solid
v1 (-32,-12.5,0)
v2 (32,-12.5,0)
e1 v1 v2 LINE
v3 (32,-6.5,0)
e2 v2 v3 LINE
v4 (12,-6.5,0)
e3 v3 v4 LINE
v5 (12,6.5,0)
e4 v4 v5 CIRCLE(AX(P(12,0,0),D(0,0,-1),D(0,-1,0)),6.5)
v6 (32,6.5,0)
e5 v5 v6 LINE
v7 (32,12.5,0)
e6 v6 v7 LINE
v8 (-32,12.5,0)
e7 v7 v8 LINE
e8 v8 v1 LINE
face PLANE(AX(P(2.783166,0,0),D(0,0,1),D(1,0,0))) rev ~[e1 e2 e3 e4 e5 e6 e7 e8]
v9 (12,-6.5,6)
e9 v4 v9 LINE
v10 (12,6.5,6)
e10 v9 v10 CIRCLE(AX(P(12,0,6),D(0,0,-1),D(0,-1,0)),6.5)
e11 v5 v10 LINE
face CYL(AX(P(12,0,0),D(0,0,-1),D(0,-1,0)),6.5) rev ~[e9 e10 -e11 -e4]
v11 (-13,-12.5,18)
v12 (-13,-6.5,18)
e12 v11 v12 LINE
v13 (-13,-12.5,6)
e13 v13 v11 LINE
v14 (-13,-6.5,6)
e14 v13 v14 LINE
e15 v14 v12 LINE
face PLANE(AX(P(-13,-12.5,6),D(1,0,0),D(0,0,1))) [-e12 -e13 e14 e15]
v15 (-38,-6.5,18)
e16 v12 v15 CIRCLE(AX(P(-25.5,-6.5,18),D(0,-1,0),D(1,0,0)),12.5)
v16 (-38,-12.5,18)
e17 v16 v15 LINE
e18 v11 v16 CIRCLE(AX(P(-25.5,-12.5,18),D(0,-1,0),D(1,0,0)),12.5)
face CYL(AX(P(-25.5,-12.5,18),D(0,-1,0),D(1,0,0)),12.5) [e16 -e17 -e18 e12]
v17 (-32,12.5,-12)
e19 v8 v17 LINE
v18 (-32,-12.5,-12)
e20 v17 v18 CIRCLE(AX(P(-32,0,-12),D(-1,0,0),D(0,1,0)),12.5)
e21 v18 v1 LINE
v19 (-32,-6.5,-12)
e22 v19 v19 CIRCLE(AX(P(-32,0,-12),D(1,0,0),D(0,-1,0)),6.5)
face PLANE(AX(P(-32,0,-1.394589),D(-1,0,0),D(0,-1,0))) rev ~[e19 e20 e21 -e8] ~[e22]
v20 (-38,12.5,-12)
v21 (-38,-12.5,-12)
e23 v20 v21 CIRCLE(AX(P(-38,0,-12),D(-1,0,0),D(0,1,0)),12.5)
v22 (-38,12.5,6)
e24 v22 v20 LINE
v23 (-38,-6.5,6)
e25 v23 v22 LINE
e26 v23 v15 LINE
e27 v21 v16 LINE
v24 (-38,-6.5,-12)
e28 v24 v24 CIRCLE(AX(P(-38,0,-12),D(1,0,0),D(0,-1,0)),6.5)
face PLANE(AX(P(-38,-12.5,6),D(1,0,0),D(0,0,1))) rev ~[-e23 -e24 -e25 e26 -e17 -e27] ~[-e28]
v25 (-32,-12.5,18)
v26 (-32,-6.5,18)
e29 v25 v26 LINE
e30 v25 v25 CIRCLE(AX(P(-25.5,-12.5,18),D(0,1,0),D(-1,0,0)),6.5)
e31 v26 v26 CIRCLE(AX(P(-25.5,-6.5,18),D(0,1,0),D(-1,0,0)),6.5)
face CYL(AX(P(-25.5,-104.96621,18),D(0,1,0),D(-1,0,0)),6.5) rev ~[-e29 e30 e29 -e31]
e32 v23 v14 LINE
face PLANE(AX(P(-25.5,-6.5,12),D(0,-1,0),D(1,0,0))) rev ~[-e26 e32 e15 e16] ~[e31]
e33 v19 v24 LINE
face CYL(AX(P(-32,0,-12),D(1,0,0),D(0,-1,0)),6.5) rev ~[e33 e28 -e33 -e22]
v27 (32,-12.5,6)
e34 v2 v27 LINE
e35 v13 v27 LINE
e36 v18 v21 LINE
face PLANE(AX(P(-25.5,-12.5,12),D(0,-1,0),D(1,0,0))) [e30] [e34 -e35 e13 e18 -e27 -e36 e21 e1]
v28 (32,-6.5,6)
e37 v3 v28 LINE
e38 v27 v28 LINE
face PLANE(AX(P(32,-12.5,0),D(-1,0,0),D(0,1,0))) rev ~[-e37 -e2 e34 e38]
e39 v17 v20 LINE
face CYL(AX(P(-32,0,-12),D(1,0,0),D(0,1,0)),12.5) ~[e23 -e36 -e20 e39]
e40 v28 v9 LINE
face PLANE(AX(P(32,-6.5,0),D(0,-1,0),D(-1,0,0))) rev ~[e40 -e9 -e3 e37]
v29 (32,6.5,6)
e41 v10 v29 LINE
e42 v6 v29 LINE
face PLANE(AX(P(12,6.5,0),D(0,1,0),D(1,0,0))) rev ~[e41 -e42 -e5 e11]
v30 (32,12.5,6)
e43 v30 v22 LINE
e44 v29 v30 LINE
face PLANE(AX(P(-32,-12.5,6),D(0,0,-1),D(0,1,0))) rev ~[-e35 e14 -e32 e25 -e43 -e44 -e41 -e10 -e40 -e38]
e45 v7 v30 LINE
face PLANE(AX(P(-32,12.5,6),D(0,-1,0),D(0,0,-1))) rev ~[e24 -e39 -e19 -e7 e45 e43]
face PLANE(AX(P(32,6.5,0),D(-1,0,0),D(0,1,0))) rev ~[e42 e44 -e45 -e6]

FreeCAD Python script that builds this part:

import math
import FreeCAD as App
import Part
import Sketcher
from FreeCAD import Vector
Q = App.Units.Quantity

doc = App.newDocument("Part")
body = doc.addObject("PartDesign::Body", "Body")

sketch1 = body.newObject("Sketcher::SketchObject", "Sketch")
sketch1.AttachmentSupport = (doc.getObject("XY_Plane"), [""])
sketch1.MapMode = "FlatFace"
sketch1.addGeometry(Part.LineSegment(Vector(-32, -12, 0), Vector(32, -12, 0)), False)
sketch1.addGeometry(Part.LineSegment(Vector(32, -12, 0), Vector(32, -6, 0)), False)
sketch1.addGeometry(Part.LineSegment(Vector(32, -6, 0), Vector(12, -6, 0)), False)
sketch1.addGeometry(Part.ArcOfCircle(Part.Circle(Vector(12, 0, 0), Vector(0, 0, 1), 6), math.radians(90), math.radians(270)), False)
sketch1.addGeometry(Part.LineSegment(Vector(12, 6, 0), Vector(32, 6, 0)), False)
sketch1.addGeometry(Part.LineSegment(Vector(32, 6, 0), Vector(32, 12, 0)), False)
sketch1.addGeometry(Part.LineSegment(Vector(32, 12, 0), Vector(-32, 12, 0)), False)
sketch1.addGeometry(Part.LineSegment(Vector(-32, 12, 0), Vector(-32, -12, 0)), False)
sketch1.addConstraint(Sketcher.Constraint("Coincident", 0, 2, 1, 1))
sketch1.addConstraint(Sketcher.Constraint("Coincident", 1, 2, 2, 1))
sketch1.addConstraint(Sketcher.Constraint("Tangent", 2, 2, 3, 2))
sketch1.addConstraint(Sketcher.Constraint("Tangent", 3, 1, 4, 1))
sketch1.addConstraint(Sketcher.Constraint("Coincident", 4, 2, 5, 1))
sketch1.addConstraint(Sketcher.Constraint("Coincident", 5, 2, 6, 1))
sketch1.addConstraint(Sketcher.Constraint("Coincident", 6, 2, 7, 1))
sketch1.addConstraint(Sketcher.Constraint("Coincident", 7, 2, 0, 1))
sketch1.addConstraint(Sketcher.Constraint("Horizontal", 0))
sketch1.addConstraint(Sketcher.Constraint("Vertical", 1))
sketch1.addConstraint(Sketcher.Constraint("Horizontal", 2))
sketch1.addConstraint(Sketcher.Constraint("Horizontal", 4))
sketch1.addConstraint(Sketcher.Constraint("Vertical", 5))
sketch1.addConstraint(Sketcher.Constraint("Horizontal", 6))
sketch1.addConstraint(Sketcher.Constraint("Vertical", 7))
sketch1.addConstraint(Sketcher.Constraint("Symmetric", 0, 2, 6, 2, -1, 1))
sketch1.addConstraint(Sketcher.Constraint("Symmetric", 1, 2, 4, 2, -1))
sketch1.addConstraint(Sketcher.Constraint("Radius", 3, Q("6.5 mm")))
sketch1.addConstraint(Sketcher.Constraint("DistanceX", 0, 1, 0, 2, Q("64 mm")))
sketch1.addConstraint(Sketcher.Constraint("DistanceX", 2, 2, 2, 1, Q("20 mm")))
sketch1.addConstraint(Sketcher.Constraint("DistanceY", 1, 1, 1, 2, Q("6 mm")))
pad1 = body.newObject("PartDesign::Pad", "Pad")
pad1.Profile = sketch1
pad1.Length = 6

sketch2 = body.newObject("Sketcher::SketchObject", "Sketch001")
sketch2.AttachmentSupport = (doc.getObject("YZ_Plane"), [""])
sketch2.MapMode = "FlatFace"
sketch2.AttachmentOffset = App.Placement(Vector(0, 0, -32), App.Rotation())
sketch2.addGeometry(Part.LineSegment(Vector(-12, 6, 0), Vector(12, 6, 0)), False)
sketch2.addGeometry(Part.LineSegment(Vector(12, 6, 0), Vector(12, -12, 0)), False)
sketch2.addGeometry(Part.ArcOfCircle(Part.Circle(Vector(0, -12, 0), Vector(0, 0, 1), 12), math.radians(180), math.radians(360)), False)
sketch2.addGeometry(Part.LineSegment(Vector(-12, -12, 0), Vector(-12, 6, 0)), False)
sketch2.addGeometry(Part.Circle(Vector(0, -12, 0), Vector(0, 0, 1), 6), False)
sketch2.addConstraint(Sketcher.Constraint("Coincident", 0, 2, 1, 1))
sketch2.addConstraint(Sketcher.Constraint("Tangent", 1, 2, 2, 2))
sketch2.addConstraint(Sketcher.Constraint("Tangent", 2, 1, 3, 1))
sketch2.addConstraint(Sketcher.Constraint("Coincident", 3, 2, 0, 1))
sketch2.addConstraint(Sketcher.Constraint("Horizontal", 0))
sketch2.addConstraint(Sketcher.Constraint("Vertical", 1))
sketch2.addConstraint(Sketcher.Constraint("Vertical", 3))
sketch2.addConstraint(Sketcher.Constraint("Coincident", 4, 3, 2, 3))
sketch2.addConstraint(Sketcher.Constraint("PointOnObject", 2, 3, -2))
sketch2.addConstraint(Sketcher.Constraint("Diameter", 4, Q("13 mm")))
sketch2.addConstraint(Sketcher.Constraint("Radius", 2, Q("12.5 mm")))
sketch2.addConstraint(Sketcher.Constraint("DistanceY", 1, 2, 1, 1, Q("18 mm")))
sketch2.addConstraint(Sketcher.Constraint("DistanceY", 2, 3, -1, 1, Q("12 mm")))
pad2 = body.newObject("PartDesign::Pad", "Pad001")
pad2.Profile = sketch2
pad2.Length = 6
pad2.Reversed = True

sketch3 = body.newObject("Sketcher::SketchObject", "Sketch002")
sketch3.AttachmentSupport = (doc.getObject("XZ_Plane"), [""])
sketch3.MapMode = "FlatFace"
sketch3.AttachmentOffset = App.Placement(Vector(0, 0, 12.5), App.Rotation())
sketch3.addGeometry(Part.LineSegment(Vector(-38, 18, 0), Vector(-38, 6, 0)), False)
sketch3.addGeometry(Part.LineSegment(Vector(-38, 6, 0), Vector(-13, 6, 0)), False)
sketch3.addGeometry(Part.LineSegment(Vector(-13, 6, 0), Vector(-13, 18, 0)), False)
sketch3.addGeometry(Part.ArcOfCircle(Part.Circle(Vector(-26, 18, 0), Vector(0, 0, 1), 12), math.radians(0), math.radians(180)), False)
sketch3.addConstraint(Sketcher.Constraint("Coincident", 0, 2, 1, 1))
sketch3.addConstraint(Sketcher.Constraint("Coincident", 1, 2, 2, 1))
sketch3.addConstraint(Sketcher.Constraint("Tangent", 2, 2, 3, 1))
sketch3.addConstraint(Sketcher.Constraint("Tangent", 3, 2, 0, 1))
sketch3.addConstraint(Sketcher.Constraint("Vertical", 0))
sketch3.addConstraint(Sketcher.Constraint("Horizontal", 1))
sketch3.addConstraint(Sketcher.Constraint("Vertical", 2))
sketch3.addConstraint(Sketcher.Constraint("Radius", 3, Q("12.5 mm")))
sketch3.addConstraint(Sketcher.Constraint("DistanceY", 0, 2, 0, 1, Q("12 mm")))
sketch3.addConstraint(Sketcher.Constraint("DistanceY", -1, 1, 3, 3, Q("18 mm")))
sketch3.addConstraint(Sketcher.Constraint("DistanceX", 0, 2, -1, 1, Q("38 mm")))
pad3 = body.newObject("PartDesign::Pad", "Pad002")
pad3.Profile = sketch3
pad3.Length = 6
pad3.Reversed = True

sketch4 = body.newObject("Sketcher::SketchObject", "Sketch003")
sketch4.AttachmentSupport = (doc.getObject("XZ_Plane"), [""])
sketch4.MapMode = "FlatFace"
sketch4.AttachmentOffset = App.Placement(Vector(0, 0, 12.5), App.Rotation())
sketch4.addGeometry(Part.Circle(Vector(-26, 18, 0), Vector(0, 0, 1), 6), False)
sketch4.addConstraint(Sketcher.Constraint("Diameter", 0, Q("13 mm")))
sketch4.addConstraint(Sketcher.Constraint("DistanceY", -1, 1, 0, 3, Q("18 mm")))
sketch4.addConstraint(Sketcher.Constraint("DistanceX", 0, 3, -1, 1, Q("25.5 mm")))
doc.recompute()
hole = body.newObject("PartDesign::Hole", "Hole")
hole.Profile = sketch4
hole.ThreadType = "None"
hole.Diameter = 13
hole.DepthType = "ThroughAll"

doc.recompute()
